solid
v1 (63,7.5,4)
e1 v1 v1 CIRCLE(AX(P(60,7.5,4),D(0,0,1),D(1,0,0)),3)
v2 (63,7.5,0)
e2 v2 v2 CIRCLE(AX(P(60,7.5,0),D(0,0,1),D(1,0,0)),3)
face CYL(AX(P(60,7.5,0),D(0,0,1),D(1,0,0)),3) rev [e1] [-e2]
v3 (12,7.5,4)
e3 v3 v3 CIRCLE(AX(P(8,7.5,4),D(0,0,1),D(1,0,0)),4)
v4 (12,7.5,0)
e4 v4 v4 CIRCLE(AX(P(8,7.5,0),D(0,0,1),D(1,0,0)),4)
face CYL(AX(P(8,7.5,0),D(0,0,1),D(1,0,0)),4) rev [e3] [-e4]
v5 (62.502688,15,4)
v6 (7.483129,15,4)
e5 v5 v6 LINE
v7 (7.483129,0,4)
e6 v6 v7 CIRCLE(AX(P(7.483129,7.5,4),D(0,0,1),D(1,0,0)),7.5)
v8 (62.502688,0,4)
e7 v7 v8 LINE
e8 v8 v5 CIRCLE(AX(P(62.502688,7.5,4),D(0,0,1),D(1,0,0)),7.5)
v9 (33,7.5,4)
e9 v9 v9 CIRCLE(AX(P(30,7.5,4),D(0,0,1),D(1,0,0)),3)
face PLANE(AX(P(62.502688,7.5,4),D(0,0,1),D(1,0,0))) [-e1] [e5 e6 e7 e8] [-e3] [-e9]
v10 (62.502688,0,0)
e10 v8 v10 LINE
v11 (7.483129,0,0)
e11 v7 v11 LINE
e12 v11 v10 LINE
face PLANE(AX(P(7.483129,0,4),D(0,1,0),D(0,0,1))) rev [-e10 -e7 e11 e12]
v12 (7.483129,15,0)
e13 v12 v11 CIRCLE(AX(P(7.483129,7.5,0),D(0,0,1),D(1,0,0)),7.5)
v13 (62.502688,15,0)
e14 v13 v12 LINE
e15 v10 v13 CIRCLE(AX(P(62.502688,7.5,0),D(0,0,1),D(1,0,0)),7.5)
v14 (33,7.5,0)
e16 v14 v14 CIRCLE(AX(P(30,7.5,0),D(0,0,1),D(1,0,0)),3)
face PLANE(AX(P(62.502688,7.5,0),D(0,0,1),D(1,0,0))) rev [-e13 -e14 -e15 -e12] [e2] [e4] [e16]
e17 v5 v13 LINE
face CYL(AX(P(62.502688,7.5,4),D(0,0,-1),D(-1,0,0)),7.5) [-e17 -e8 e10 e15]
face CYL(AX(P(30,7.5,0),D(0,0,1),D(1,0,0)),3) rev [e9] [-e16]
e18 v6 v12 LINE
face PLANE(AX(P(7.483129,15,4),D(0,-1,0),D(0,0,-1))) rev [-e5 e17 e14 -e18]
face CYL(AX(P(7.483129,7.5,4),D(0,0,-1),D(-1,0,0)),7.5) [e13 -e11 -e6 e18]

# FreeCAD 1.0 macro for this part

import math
import FreeCAD as App
import Part
import Sketcher
from FreeCAD import Vector
Q = App.Units.Quantity

doc = App.newDocument("Part")
params = doc.addObject("Spreadsheet::Sheet", "Params")
for row, (alias, value) in enumerate([
    ("sketch1_radius", "7.5 mm"),
    ("pad1_length", "4 mm"),
    ("sketch2_diameter", "8 mm"),
    ("sketch2_diameter2", "6 mm"),
    ("pocket1_length", "4 mm"),
], start=1):
    params.set(f"A{row}", alias)
    params.set(f"B{row}", "=" + value)
    params.setAlias(f"B{row}", alias)

body = doc.addObject("PartDesign::Body", "Body")

# Sketch on XY plane
sketch1 = body.newObject("Sketcher::SketchObject", "Sketch")
sketch1.AttachmentSupport = (doc.getObject("XY_Plane"), [""])
sketch1.MapMode = "FlatFace"
sketch1.addGeometry(Part.LineSegment(Vector(7, 0, 0), Vector(63, 0, 0)), False)
sketch1.addGeometry(Part.ArcOfCircle(Part.Circle(Vector(63, 8, 0), Vector(0, 0, 1), 8), math.radians(-90), math.radians(90)), False)
sketch1.addGeometry(Part.LineSegment(Vector(63, 15, 0), Vector(7, 15, 0)), False)
sketch1.addGeometry(Part.ArcOfCircle(Part.Circle(Vector(7, 8, 0), Vector(0, 0, 1), 8), math.radians(90), math.radians(270)), False)
sketch1.addConstraint(Sketcher.Constraint("Tangent", 0, 2, 1, 1))
sketch1.addConstraint(Sketcher.Constraint("Tangent", 1, 2, 2, 1))
sketch1.addConstraint(Sketcher.Constraint("Tangent", 2, 2, 3, 1))
sketch1.addConstraint(Sketcher.Constraint("Tangent", 3, 2, 0, 1))
sketch1.addConstraint(Sketcher.Constraint("Horizontal", 0))
sketch1.addConstraint(Sketcher.Constraint("Horizontal", 2))
sketch1.addConstraint(Sketcher.Constraint("PointOnObject", 0, 2, -1))
sketch1.addConstraint(Sketcher.Constraint("Radius", 1, Q("7.5 mm")))
sketch1.addConstraint(Sketcher.Constraint("DistanceX", 0, 1, 0, 2, Q("55.019559 mm")))
sketch1.addConstraint(Sketcher.Constraint("DistanceX", -1, 1, 3, 3, Q("7.483129 mm")))
sketch1.setExpression("Constraints[7]", "Params.sketch1_radius")
pad1 = body.newObject("PartDesign::Pad", "Pad")
pad1.Profile = sketch1
pad1.setExpression("Length", "Params.pad1_length")

# Sketch on XY plane
sketch2 = body.newObject("Sketcher::SketchObject", "Sketch001")
sketch2.AttachmentSupport = (doc.getObject("XY_Plane"), [""])
sketch2.MapMode = "FlatFace"
sketch2.AttachmentOffset = App.Placement(Vector(0, 0, 4), App.Rotation())
sketch2.addGeometry(Part.Circle(Vector(8, 7.5, 0), Vector(0, 0, 1), 4), False)
sketch2.addGeometry(Part.Circle(Vector(30, 7.5, 0), Vector(0, 0, 1), 3), False)
sketch2.addGeometry(Part.Circle(Vector(60, 7.5, 0), Vector(0, 0, 1), 3), False)
sketch2.addConstraint(Sketcher.Constraint("Equal", 1, 2))
sketch2.addConstraint(Sketcher.Constraint("Horizontal", 0, 3, 1, 3))
sketch2.addConstraint(Sketcher.Constraint("Horizontal", 1, 3, 2, 3))
sketch2.addConstraint(Sketcher.Constraint("Diameter", 0, Q("8 mm")))
sketch2.addConstraint(Sketcher.Constraint("Diameter", 1, Q("6 mm")))
sketch2.addConstraint(Sketcher.Constraint("DistanceX", -1, 1, 0, 3, Q("8 mm")))
sketch2.addConstraint(Sketcher.Constraint("DistanceX", -1, 1, 1, 3, Q("30 mm")))
sketch2.addConstraint(Sketcher.Constraint("DistanceX", -1, 1, 2, 3, Q("60 mm")))
sketch2.addConstraint(Sketcher.Constraint("DistanceY", -1, 1, 0, 3, Q("7.5 mm")))
sketch2.setExpression("Constraints[3]", "Params.sketch2_diameter")
sketch2.setExpression("Constraints[4]", "Params.sketch2_diameter2")
pocket1 = body.newObject("PartDesign::Pocket", "Pocket")
pocket1.Profile = sketch2
pocket1.setExpression("Length", "Params.pocket1_length")

doc.recompute()
